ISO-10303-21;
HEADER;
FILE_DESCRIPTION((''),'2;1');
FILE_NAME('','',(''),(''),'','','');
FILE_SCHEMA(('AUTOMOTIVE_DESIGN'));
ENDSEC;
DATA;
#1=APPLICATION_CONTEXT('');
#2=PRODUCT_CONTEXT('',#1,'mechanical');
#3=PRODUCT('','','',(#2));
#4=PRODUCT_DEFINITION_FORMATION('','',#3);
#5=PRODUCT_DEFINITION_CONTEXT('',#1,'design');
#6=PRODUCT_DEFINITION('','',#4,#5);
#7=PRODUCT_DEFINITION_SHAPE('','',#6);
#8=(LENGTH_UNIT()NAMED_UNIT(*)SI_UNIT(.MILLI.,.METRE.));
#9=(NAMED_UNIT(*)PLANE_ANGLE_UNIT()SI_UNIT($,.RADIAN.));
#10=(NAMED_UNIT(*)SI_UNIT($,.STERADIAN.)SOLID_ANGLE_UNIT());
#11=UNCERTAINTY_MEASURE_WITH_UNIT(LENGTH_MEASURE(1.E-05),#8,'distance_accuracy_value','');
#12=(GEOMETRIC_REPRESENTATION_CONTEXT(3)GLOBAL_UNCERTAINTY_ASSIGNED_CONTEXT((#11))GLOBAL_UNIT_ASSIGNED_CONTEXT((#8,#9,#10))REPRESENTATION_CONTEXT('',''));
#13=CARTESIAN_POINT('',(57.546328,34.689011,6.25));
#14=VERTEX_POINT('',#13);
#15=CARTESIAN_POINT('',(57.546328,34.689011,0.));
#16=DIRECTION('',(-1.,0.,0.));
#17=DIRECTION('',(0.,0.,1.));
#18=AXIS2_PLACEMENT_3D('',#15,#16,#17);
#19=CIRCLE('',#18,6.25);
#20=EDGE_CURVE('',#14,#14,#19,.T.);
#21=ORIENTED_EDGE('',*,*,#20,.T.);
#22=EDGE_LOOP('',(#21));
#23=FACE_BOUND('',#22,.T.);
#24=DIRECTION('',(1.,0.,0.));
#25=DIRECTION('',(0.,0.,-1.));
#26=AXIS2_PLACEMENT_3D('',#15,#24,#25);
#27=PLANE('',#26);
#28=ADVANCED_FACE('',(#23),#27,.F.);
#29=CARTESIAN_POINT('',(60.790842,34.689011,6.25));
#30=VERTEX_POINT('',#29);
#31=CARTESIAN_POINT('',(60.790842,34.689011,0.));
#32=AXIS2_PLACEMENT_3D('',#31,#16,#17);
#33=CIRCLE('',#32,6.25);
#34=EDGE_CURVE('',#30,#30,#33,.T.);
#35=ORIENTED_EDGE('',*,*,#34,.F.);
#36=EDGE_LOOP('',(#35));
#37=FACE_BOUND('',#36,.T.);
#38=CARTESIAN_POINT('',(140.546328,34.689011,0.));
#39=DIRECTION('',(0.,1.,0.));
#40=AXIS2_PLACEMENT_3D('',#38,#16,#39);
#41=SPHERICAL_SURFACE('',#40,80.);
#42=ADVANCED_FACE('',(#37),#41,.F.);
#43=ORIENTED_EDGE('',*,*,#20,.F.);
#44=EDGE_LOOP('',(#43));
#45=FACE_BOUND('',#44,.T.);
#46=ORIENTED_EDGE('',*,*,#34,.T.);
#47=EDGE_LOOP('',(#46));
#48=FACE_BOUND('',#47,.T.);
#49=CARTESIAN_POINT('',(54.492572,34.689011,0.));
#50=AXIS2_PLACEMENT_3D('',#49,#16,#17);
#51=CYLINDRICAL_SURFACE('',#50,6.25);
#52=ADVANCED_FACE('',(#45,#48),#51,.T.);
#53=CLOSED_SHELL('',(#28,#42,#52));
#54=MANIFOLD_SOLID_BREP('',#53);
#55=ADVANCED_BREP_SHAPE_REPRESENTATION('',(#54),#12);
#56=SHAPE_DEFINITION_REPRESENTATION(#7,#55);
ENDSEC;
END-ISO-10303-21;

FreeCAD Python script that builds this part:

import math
import FreeCAD as App
import Part
import Sketcher

V = App.Vector
Q = App.Units.Quantity

doc = App.newDocument("Part")
body = doc.addObject("PartDesign::Body", "Body")

sketch1 = body.newObject("Sketcher::SketchObject", "Sketch")
sketch1.AttachmentSupport = (doc.getObject("XY_Plane"), [""])
sketch1.MapMode = "FlatFace"
sketch1.addGeometry([
    Part.LineSegment(V(57.5, 40.9, 0), V(57.5, 34.7, 0)),
    Part.LineSegment(V(57.5, 34.7, 0), V(60.5, 34.7, 0)),
    Part.ArcOfCircle(Part.Circle(V(140.5, 34.7, 0), V(0, 0, 1), 80), math.radians(175.52), math.radians(180)),
    Part.LineSegment(V(60.8, 40.9, 0), V(57.5, 40.9, 0)),
], False)
sketch1.addGeometry(Part.LineSegment(V(57.5, 34.7, 0), V(140.5, 34.7, 0)), True)
sketch1.addConstraint([
    Sketcher.Constraint("Coincident", 0, 2, 1, 1),
    Sketcher.Constraint("Coincident", 1, 2, 2, 2),
    Sketcher.Constraint("Coincident", 2, 1, 3, 1),
    Sketcher.Constraint("Coincident", 3, 2, 0, 1),
    Sketcher.Constraint("Vertical", 0),
    Sketcher.Constraint("Horizontal", 1),
    Sketcher.Constraint("Horizontal", 3),
    Sketcher.Constraint("Horizontal", 4),
    Sketcher.Constraint("Coincident", 4, 1, 0, 2),
    Sketcher.Constraint("Coincident", 4, 2, 2, 3),
    Sketcher.Constraint("Radius", 2, Q("80 mm")),
    Sketcher.Constraint("DistanceX", 1, 1, 1, 2, Q("3 mm")),
    Sketcher.Constraint("DistanceY", 0, 2, 0, 1, Q("6.25 mm")),
    Sketcher.Constraint("DistanceY", -1, 1, 2, 3, Q("34.689011 mm")),
    Sketcher.Constraint("DistanceX", -1, 1, 2, 3, Q("140.546328 mm")),
])
revolution = body.newObject("PartDesign::Revolution", "Revolution")
revolution.Profile = sketch1
revolution.ReferenceAxis = (sketch1, ["Axis0"])
revolution.Angle = 360

doc.recompute()
